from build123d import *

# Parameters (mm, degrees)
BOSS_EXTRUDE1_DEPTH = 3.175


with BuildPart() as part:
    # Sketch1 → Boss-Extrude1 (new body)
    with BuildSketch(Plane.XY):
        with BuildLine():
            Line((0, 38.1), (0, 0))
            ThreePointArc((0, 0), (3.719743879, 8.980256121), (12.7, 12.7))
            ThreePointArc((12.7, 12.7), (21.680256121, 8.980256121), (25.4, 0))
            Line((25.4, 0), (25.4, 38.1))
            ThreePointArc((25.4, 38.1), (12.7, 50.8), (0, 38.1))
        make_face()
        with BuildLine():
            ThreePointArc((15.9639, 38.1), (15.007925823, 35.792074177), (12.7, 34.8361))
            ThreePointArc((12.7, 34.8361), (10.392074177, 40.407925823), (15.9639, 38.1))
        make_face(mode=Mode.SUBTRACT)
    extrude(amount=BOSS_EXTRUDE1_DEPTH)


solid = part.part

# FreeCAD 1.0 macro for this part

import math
import FreeCAD as App
import Part
import Sketcher
from FreeCAD import Vector
Q = App.Units.Quantity

doc = App.newDocument("Part")
body = doc.addObject("PartDesign::Body", "Body")

sketch1 = body.newObject("Sketcher::SketchObject", "Sketch")
sketch1.AttachmentSupport = (doc.getObject("XY_Plane"), [""])
sketch1.MapMode = "FlatFace"
sketch1.addGeometry([
    Part.LineSegment(Vector(0, 38.1, 0), Vector(0, 0, 0)),
    Part.ArcOfCircle(Part.Circle(Vector(12.7, 0, 0), Vector(0, 0, 1), 12.7), math.radians(90), math.radians(180)),
    Part.ArcOfCircle(Part.Circle(Vector(12.7, 0, 0), Vector(0, 0, 1), 12.7), math.radians(0), math.radians(90)),
    Part.LineSegment(Vector(25.4, 0, 0), Vector(25.4, 38.1, 0)),
    Part.ArcOfCircle(Part.Circle(Vector(12.7, 38.1, 0), Vector(0, 0, 1), 12.7), math.radians(0), math.radians(180)),
    Part.ArcOfCircle(Part.Circle(Vector(12.7, 38.1, 0), Vector(0, 0, 1), 3.3), math.radians(0), math.radians(270)),
    Part.ArcOfCircle(Part.Circle(Vector(12.7, 38.1, 0), Vector(0, 0, 1), 3.3), math.radians(-90), math.radians(0)),
], False)
sketch1.addConstraint([
    Sketcher.Constraint("Tangent", 0, 2, 1, 2),
    Sketcher.Constraint("Tangent", 1, 1, 2, 2),
    Sketcher.Constraint("Tangent", 2, 1, 3, 1),
    Sketcher.Constraint("Tangent", 3, 2, 4, 1),
    Sketcher.Constraint("Tangent", 4, 2, 0, 1),
    Sketcher.Constraint("Tangent", 5, 1, 6, 2),
    Sketcher.Constraint("Coincident", 6, 1, 5, 2),
    Sketcher.Constraint("Vertical", 0),
    Sketcher.Constraint("Vertical", 3),
    Sketcher.Constraint("Coincident", 0, 2, -1, 1),
    Sketcher.Constraint("Coincident", 5, 3, 4, 3),
    Sketcher.Constraint("Equal", 1, 2),
    Sketcher.Constraint("Horizontal", 4, 2, 5, 1),
    Sketcher.Constraint("Vertical", 6, 3, 1, 1),
    Sketcher.Constraint("Vertical", 1, 1, 6, 1),
    Sketcher.Constraint("Radius", 1, Q("0.5 in")),
    Sketcher.Constraint("DistanceY", 0, 2, 0, 1, Q("1.5 in")),
    Sketcher.Constraint("Radius", 5, Q("0.1285 in")),
])
pad1 = body.newObject("PartDesign::Pad", "Pad")
pad1.Profile = sketch1
pad1.Length = Q("0.125 in")

doc.recompute()
